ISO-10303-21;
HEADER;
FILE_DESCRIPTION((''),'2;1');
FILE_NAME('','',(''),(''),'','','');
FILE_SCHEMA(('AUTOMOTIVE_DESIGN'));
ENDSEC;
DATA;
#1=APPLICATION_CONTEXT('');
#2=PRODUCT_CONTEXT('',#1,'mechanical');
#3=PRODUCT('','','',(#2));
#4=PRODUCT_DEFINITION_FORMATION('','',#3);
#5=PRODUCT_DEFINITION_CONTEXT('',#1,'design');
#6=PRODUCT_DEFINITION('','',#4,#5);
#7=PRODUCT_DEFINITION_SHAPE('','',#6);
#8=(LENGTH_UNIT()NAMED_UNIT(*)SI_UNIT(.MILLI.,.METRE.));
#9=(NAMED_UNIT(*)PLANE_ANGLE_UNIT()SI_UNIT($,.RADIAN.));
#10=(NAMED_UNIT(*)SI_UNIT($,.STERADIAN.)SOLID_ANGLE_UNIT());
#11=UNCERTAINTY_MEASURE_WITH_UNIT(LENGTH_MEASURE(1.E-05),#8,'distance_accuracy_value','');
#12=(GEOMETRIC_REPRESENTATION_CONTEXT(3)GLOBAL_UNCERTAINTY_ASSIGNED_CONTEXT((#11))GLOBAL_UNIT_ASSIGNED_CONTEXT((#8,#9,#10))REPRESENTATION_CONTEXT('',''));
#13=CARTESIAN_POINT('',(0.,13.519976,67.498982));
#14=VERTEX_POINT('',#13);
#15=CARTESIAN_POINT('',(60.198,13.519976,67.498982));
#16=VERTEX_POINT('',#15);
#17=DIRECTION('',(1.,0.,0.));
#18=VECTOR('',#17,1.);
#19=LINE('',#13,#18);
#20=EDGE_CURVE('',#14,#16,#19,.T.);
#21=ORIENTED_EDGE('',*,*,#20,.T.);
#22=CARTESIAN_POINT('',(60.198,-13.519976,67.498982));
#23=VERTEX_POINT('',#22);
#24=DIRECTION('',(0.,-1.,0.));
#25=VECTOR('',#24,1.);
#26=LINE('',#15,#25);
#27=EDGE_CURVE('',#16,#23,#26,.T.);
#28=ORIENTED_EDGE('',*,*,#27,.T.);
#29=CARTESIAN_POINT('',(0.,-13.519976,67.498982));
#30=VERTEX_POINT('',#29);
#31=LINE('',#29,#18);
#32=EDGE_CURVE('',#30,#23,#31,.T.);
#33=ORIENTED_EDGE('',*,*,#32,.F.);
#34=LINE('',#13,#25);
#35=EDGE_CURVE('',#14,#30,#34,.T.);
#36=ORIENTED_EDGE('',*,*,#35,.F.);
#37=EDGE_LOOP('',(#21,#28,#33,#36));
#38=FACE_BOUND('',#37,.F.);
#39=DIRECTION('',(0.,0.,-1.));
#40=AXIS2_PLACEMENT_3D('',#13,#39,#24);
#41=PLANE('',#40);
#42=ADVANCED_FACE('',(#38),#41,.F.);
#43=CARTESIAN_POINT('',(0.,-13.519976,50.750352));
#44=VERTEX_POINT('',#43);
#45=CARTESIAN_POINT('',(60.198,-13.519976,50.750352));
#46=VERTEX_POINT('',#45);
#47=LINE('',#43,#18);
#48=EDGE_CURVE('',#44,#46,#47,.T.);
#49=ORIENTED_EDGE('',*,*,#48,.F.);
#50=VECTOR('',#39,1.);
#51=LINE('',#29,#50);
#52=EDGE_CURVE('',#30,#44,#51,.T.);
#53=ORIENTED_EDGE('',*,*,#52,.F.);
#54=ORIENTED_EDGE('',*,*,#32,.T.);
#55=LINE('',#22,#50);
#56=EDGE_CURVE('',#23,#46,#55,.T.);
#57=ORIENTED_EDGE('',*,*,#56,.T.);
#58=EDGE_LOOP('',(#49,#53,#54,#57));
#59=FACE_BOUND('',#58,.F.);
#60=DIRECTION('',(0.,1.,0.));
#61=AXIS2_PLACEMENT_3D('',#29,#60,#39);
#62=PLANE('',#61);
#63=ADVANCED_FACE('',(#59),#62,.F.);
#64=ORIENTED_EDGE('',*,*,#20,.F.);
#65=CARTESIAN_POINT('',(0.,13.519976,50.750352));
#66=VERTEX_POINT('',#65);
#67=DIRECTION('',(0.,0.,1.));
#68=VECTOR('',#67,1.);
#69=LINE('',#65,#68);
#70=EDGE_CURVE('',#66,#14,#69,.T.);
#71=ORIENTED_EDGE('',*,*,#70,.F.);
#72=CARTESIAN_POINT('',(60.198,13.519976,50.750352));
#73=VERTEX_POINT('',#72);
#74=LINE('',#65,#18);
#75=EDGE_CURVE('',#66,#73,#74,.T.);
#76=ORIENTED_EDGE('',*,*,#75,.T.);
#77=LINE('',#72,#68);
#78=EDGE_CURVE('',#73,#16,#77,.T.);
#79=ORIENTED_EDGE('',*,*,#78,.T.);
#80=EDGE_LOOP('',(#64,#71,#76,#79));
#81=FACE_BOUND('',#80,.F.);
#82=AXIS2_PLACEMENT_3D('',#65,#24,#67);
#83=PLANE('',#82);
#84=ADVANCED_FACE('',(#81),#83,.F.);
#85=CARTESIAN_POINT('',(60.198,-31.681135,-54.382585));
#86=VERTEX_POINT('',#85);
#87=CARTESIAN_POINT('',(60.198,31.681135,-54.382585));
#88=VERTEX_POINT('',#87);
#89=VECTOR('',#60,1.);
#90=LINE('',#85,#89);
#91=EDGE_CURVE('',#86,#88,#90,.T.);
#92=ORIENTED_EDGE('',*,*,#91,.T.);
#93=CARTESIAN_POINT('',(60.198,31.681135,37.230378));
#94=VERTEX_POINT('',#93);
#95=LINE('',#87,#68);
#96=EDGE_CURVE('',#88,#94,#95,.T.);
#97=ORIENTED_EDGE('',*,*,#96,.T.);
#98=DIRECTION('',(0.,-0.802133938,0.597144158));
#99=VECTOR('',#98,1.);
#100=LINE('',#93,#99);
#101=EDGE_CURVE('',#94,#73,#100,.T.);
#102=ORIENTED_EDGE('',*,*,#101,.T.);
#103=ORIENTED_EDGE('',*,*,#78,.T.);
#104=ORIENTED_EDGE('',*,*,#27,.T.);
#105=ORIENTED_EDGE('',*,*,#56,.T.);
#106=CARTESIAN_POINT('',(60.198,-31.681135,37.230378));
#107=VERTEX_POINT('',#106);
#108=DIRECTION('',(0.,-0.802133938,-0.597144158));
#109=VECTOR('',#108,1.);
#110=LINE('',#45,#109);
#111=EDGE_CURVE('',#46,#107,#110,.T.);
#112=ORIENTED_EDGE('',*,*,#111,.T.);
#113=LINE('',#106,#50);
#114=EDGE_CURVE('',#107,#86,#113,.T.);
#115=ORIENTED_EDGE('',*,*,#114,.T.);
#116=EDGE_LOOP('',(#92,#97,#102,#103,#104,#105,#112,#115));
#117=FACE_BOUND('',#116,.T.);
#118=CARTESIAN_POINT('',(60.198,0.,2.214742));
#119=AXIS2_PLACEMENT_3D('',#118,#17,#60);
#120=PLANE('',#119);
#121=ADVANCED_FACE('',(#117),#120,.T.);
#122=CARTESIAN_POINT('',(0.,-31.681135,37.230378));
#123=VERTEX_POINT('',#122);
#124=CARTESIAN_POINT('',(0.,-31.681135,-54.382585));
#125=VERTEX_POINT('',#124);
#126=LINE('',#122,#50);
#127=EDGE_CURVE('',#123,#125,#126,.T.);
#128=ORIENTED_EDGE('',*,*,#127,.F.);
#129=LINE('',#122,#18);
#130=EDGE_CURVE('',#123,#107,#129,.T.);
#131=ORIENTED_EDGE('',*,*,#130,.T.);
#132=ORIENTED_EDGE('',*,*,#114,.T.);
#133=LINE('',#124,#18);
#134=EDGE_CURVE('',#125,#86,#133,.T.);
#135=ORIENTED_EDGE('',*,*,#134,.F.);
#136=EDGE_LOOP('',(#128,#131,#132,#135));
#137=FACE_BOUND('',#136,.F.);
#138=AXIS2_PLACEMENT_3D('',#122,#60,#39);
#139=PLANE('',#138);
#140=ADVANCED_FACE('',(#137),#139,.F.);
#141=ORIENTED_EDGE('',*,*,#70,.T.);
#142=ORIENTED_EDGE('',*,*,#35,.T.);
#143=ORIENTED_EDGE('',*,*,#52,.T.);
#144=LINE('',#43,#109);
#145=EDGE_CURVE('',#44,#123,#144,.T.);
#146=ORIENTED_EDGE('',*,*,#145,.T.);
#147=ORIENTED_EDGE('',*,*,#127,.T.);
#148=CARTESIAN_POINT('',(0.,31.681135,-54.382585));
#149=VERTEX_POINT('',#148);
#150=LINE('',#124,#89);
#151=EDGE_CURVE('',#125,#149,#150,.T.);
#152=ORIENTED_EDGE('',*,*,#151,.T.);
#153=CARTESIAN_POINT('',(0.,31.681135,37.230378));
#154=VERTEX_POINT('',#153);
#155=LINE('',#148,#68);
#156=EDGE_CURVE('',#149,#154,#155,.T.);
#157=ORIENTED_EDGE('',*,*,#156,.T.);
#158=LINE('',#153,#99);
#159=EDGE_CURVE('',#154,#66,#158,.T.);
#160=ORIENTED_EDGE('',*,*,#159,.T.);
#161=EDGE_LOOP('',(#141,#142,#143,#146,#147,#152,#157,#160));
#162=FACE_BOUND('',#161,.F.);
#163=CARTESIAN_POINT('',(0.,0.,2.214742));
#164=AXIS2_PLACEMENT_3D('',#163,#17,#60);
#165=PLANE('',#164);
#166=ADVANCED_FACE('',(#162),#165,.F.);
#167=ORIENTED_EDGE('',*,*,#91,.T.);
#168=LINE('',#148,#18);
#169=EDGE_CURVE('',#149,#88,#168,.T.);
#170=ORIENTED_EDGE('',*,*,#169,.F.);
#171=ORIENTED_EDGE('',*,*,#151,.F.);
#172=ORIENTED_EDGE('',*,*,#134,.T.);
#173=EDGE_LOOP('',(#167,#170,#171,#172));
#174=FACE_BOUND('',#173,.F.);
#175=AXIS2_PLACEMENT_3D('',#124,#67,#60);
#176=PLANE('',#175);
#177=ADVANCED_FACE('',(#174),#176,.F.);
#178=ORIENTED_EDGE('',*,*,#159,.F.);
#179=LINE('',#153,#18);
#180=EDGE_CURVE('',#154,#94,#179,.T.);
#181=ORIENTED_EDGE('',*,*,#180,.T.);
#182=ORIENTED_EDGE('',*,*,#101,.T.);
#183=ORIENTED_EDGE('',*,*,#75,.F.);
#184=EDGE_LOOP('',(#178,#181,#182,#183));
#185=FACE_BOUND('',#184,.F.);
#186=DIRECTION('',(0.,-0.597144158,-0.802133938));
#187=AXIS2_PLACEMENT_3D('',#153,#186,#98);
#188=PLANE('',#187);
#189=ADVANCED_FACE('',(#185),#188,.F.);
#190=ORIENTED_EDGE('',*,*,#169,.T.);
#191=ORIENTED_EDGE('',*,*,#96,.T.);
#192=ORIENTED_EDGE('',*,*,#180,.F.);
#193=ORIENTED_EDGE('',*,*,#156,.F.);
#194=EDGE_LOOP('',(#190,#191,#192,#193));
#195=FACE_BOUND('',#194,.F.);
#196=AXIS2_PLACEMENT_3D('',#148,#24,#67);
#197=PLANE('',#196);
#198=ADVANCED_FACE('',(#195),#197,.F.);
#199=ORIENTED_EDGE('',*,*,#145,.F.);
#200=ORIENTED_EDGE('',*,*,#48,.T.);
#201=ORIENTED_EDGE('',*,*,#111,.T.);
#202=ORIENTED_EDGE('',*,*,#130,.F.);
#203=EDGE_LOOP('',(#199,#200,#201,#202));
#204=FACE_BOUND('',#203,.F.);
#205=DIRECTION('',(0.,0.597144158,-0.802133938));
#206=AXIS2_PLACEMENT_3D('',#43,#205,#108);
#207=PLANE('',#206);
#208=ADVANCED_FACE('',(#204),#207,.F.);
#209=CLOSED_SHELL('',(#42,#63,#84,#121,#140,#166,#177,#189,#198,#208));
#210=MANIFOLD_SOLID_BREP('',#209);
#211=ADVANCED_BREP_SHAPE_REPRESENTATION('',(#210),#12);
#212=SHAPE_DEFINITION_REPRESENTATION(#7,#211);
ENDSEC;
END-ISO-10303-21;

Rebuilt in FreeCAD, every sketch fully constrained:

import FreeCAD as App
import Part
import Sketcher
from FreeCAD import Vector
Q = App.Units.Quantity

doc = App.newDocument("Part")
body = doc.addObject("PartDesign::Body", "Body")

sketch1 = doc.addObject("Sketcher::SketchObject", "Sketch")
body.addObject(sketch1)
sketch1.AttachmentSupport = (doc.YZ_Plane, [""])
sketch1.MapMode = "FlatFace"
sketch1.addGeometry([
    Part.LineSegment(Vector(-32, 37, 0), Vector(-32, -54, 0)),
    Part.LineSegment(Vector(-32, -54, 0), Vector(32, -54, 0)),
    Part.LineSegment(Vector(32, -54, 0), Vector(32, 37, 0)),
    Part.LineSegment(Vector(32, 37, 0), Vector(14, 51, 0)),
    Part.LineSegment(Vector(14, 51, 0), Vector(14, 67, 0)),
    Part.LineSegment(Vector(14, 67, 0), Vector(-14, 67, 0)),
    Part.LineSegment(Vector(-14, 67, 0), Vector(-14, 51, 0)),
    Part.LineSegment(Vector(-14, 51, 0), Vector(-32, 37, 0)),
], False)
sketch1.addConstraint([
    Sketcher.Constraint("Coincident", 0, 2, 1, 1),
    Sketcher.Constraint("Coincident", 1, 2, 2, 1),
    Sketcher.Constraint("Coincident", 2, 2, 3, 1),
    Sketcher.Constraint("Coincident", 3, 2, 4, 1),
    Sketcher.Constraint("Coincident", 4, 2, 5, 1),
    Sketcher.Constraint("Coincident", 5, 2, 6, 1),
    Sketcher.Constraint("Coincident", 6, 2, 7, 1),
    Sketcher.Constraint("Coincident", 7, 2, 0, 1),
    Sketcher.Constraint("Vertical", 0),
    Sketcher.Constraint("Horizontal", 1),
    Sketcher.Constraint("Vertical", 2),
    Sketcher.Constraint("Vertical", 4),
    Sketcher.Constraint("Horizontal", 5),
    Sketcher.Constraint("Vertical", 6),
    Sketcher.Constraint("Symmetric", 3, 2, 6, 2, -2),
    Sketcher.Constraint("Symmetric", 2, 2, 7, 2, -2),
    Sketcher.Constraint("DistanceX", 1, 1, 1, 2, Q("63.36227 mm")),
    Sketcher.Constraint("DistanceX", 5, 2, 5, 1, Q("27.039952 mm")),
    Sketcher.Constraint("DistanceY", 4, 1, 4, 2, Q("16.74863 mm")),
    Sketcher.Constraint("DistanceY", 0, 2, 0, 1, Q("91.612963 mm")),
    Sketcher.Constraint("DistanceY", -1, 1, 2, 2, Q("37.230378 mm")),
    Sketcher.Constraint("DistanceY", -1, 1, 4, 2, Q("67.498982 mm")),
])
pad1 = doc.addObject("PartDesign::Pad", "Pad")
body.addObject(pad1)
pad1.Profile = sketch1
pad1.Length = Q("2.37 in")

doc.recompute()
